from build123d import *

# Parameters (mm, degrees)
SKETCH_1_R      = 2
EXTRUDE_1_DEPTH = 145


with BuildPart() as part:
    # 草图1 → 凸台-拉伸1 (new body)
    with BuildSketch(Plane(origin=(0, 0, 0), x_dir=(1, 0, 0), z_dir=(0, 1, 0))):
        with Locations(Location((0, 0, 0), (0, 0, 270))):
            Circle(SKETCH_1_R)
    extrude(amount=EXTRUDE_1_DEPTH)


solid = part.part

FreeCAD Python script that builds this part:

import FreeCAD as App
import Part
import Sketcher

doc = App.newDocument("Part")
body = doc.addObject("PartDesign::Body", "Body")

sketch1 = doc.addObject("Sketcher::SketchObject", "Sketch")
body.addObject(sketch1)
sketch1.AttachmentSupport = (doc.XZ_Plane, [""])
sketch1.MapMode = "FlatFace"
sketch1.addGeometry(Part.Circle(App.Vector(0, 0, 0), App.Vector(0, 0, 1), 2), False)
sketch1.addConstraint([
    Sketcher.Constraint("Coincident", 0, 3, -1, 1),
    Sketcher.Constraint("Diameter", 0, 4.0),
])
pad1 = doc.addObject("PartDesign::Pad", "Pad")
body.addObject(pad1)
pad1.Profile = sketch1
pad1.Length = 145
pad1.Reversed = True

doc.recompute()
